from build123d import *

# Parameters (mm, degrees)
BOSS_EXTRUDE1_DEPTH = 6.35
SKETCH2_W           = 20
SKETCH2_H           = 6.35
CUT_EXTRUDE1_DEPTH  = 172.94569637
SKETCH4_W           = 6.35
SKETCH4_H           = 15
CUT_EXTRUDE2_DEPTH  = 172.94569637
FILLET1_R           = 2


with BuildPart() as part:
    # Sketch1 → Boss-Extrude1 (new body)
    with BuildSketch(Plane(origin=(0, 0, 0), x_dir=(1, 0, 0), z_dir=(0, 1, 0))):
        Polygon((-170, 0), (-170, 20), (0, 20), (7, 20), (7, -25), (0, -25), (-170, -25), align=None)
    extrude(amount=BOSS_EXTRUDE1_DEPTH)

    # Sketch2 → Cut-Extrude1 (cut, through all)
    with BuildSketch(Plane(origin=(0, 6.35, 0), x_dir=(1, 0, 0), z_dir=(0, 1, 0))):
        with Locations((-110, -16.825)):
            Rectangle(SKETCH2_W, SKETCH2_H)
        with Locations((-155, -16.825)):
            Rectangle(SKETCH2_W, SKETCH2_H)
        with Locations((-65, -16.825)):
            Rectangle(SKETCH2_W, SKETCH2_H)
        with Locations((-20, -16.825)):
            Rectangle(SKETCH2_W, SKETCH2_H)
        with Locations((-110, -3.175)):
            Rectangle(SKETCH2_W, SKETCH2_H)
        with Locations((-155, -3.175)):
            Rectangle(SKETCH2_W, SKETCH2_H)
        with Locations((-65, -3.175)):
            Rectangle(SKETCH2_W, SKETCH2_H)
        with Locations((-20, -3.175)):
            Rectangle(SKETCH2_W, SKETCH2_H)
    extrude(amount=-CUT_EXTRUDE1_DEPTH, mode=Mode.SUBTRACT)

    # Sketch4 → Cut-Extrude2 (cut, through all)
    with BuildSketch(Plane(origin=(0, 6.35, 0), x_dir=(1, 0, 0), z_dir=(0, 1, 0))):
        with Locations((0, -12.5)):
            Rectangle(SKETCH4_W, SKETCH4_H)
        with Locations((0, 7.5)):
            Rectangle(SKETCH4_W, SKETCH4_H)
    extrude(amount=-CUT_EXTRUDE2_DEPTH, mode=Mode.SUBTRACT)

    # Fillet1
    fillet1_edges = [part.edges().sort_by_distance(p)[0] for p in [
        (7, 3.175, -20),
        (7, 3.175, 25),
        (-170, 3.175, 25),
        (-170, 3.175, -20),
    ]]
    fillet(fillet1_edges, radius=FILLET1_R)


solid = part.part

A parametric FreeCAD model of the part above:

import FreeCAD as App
import Part
import Sketcher


def edges_at(feature, points):
    """Names of the edges that pass closest to the given points."""
    edges = feature.Shape.Edges
    near = lambda p: min(range(len(edges)), key=lambda i: edges[i].distToShape(Part.Vertex(*p))[0])
    return sorted({f"Edge{near(p) + 1}" for p in points})

doc = App.newDocument("Part")
body = doc.addObject("PartDesign::Body", "Body")

sketch1 = body.newObject("Sketcher::SketchObject", "Sketch")
sketch1.AttachmentSupport = (doc.getObject("XZ_Plane"), [""])
sketch1.MapMode = "FlatFace"
sketch1.addGeometry([
    Part.LineSegment(App.Vector(-170, -20, 0), App.Vector(-170, 25, 0)),
    Part.LineSegment(App.Vector(-170, 25, 0), App.Vector(7, 25, 0)),
    Part.LineSegment(App.Vector(7, 25, 0), App.Vector(7, -20, 0)),
    Part.LineSegment(App.Vector(7, -20, 0), App.Vector(-170, -20, 0)),
], False)
sketch1.addConstraint([
    Sketcher.Constraint("Coincident", 0, 2, 1, 1),
    Sketcher.Constraint("Coincident", 1, 2, 2, 1),
    Sketcher.Constraint("Coincident", 2, 2, 3, 1),
    Sketcher.Constraint("Coincident", 3, 2, 0, 1),
    Sketcher.Constraint("Vertical", 0),
    Sketcher.Constraint("Horizontal", 1),
    Sketcher.Constraint("Vertical", 2),
    Sketcher.Constraint("Horizontal", 3),
    Sketcher.Constraint("DistanceX", 1, 1, 1, 2, 177.0),
    Sketcher.Constraint("DistanceY", 0, 1, 0, 2, 45.0),
    Sketcher.Constraint("DistanceX", 0, 2, -1, 1, 170.0),
    Sketcher.Constraint("DistanceY", -1, 1, 0, 2, 25.0),
])
pad1 = body.newObject("PartDesign::Pad", "Pad")
pad1.Profile = sketch1
pad1.Length = 6.35
pad1.Reversed = True

sketch2 = body.newObject("Sketcher::SketchObject", "Sketch001")
sketch2.AttachmentSupport = (doc.getObject("XZ_Plane"), [""])
sketch2.MapMode = "FlatFace"
sketch2.AttachmentOffset = App.Placement(App.Vector(0, 0, -6.35), App.Rotation())
sketch2.addGeometry([
    Part.LineSegment(App.Vector(-120, 13.65, 0), App.Vector(-120, 20, 0)),
    Part.LineSegment(App.Vector(-120, 20, 0), App.Vector(-100, 20, 0)),
    Part.LineSegment(App.Vector(-100, 20, 0), App.Vector(-100, 13.65, 0)),
    Part.LineSegment(App.Vector(-100, 13.65, 0), App.Vector(-120, 13.65, 0)),
    Part.LineSegment(App.Vector(-165, 13.65, 0), App.Vector(-165, 20, 0)),
    Part.LineSegment(App.Vector(-165, 20, 0), App.Vector(-145, 20, 0)),
    Part.LineSegment(App.Vector(-145, 20, 0), App.Vector(-145, 13.65, 0)),
    Part.LineSegment(App.Vector(-145, 13.65, 0), App.Vector(-165, 13.65, 0)),
    Part.LineSegment(App.Vector(-75, 13.65, 0), App.Vector(-75, 20, 0)),
    Part.LineSegment(App.Vector(-75, 20, 0), App.Vector(-55, 20, 0)),
    Part.LineSegment(App.Vector(-55, 20, 0), App.Vector(-55, 13.65, 0)),
    Part.LineSegment(App.Vector(-55, 13.65, 0), App.Vector(-75, 13.65, 0)),
    Part.LineSegment(App.Vector(-30, 13.65, 0), App.Vector(-30, 20, 0)),
    Part.LineSegment(App.Vector(-30, 20, 0), App.Vector(-10, 20, 0)),
    Part.LineSegment(App.Vector(-10, 20, 0), App.Vector(-10, 13.65, 0)),
    Part.LineSegment(App.Vector(-10, 13.65, 0), App.Vector(-30, 13.65, 0)),
    Part.LineSegment(App.Vector(-120, 0, 0), App.Vector(-120, 6.35, 0)),
    Part.LineSegment(App.Vector(-120, 6.35, 0), App.Vector(-100, 6.35, 0)),
    Part.LineSegment(App.Vector(-100, 6.35, 0), App.Vector(-100, 0, 0)),
    Part.LineSegment(App.Vector(-100, 0, 0), App.Vector(-120, 0, 0)),
    Part.LineSegment(App.Vector(-165, 0, 0), App.Vector(-165, 6.35, 0)),
    Part.LineSegment(App.Vector(-165, 6.35, 0), App.Vector(-145, 6.35, 0)),
    Part.LineSegment(App.Vector(-145, 6.35, 0), App.Vector(-145, 0, 0)),
    Part.LineSegment(App.Vector(-145, 0, 0), App.Vector(-165, 0, 0)),
    Part.LineSegment(App.Vector(-75, 0, 0), App.Vector(-75, 6.35, 0)),
    Part.LineSegment(App.Vector(-75, 6.35, 0), App.Vector(-55, 6.35, 0)),
    Part.LineSegment(App.Vector(-55, 6.35, 0), App.Vector(-55, 0, 0)),
    Part.LineSegment(App.Vector(-55, 0, 0), App.Vector(-75, 0, 0)),
    Part.LineSegment(App.Vector(-30, 0, 0), App.Vector(-30, 6.35, 0)),
    Part.LineSegment(App.Vector(-30, 6.35, 0), App.Vector(-10, 6.35, 0)),
    Part.LineSegment(App.Vector(-10, 6.35, 0), App.Vector(-10, 0, 0)),
    Part.LineSegment(App.Vector(-10, 0, 0), App.Vector(-30, 0, 0)),
], False)
sketch2.addConstraint([
    Sketcher.Constraint("Coincident", 0, 2, 1, 1),
    Sketcher.Constraint("Coincident", 1, 2, 2, 1),
    Sketcher.Constraint("Coincident", 2, 2, 3, 1),
    Sketcher.Constraint("Coincident", 3, 2, 0, 1),
    Sketcher.Constraint("Coincident", 4, 2, 5, 1),
    Sketcher.Constraint("Coincident", 5, 2, 6, 1),
    Sketcher.Constraint("Coincident", 6, 2, 7, 1),
    Sketcher.Constraint("Coincident", 7, 2, 4, 1),
    Sketcher.Constraint("Coincident", 8, 2, 9, 1),
    Sketcher.Constraint("Coincident", 9, 2, 10, 1),
    Sketcher.Constraint("Coincident", 10, 2, 11, 1),
    Sketcher.Constraint("Coincident", 11, 2, 8, 1),
    Sketcher.Constraint("Coincident", 12, 2, 13, 1),
    Sketcher.Constraint("Coincident", 13, 2, 14, 1),
    Sketcher.Constraint("Coincident", 14, 2, 15, 1),
    Sketcher.Constraint("Coincident", 15, 2, 12, 1),
    Sketcher.Constraint("Coincident", 16, 2, 17, 1),
    Sketcher.Constraint("Coincident", 17, 2, 18, 1),
    Sketcher.Constraint("Coincident", 18, 2, 19, 1),
    Sketcher.Constraint("Coincident", 19, 2, 16, 1),
    Sketcher.Constraint("Coincident", 20, 2, 21, 1),
    Sketcher.Constraint("Coincident", 21, 2, 22, 1),
    Sketcher.Constraint("Coincident", 22, 2, 23, 1),
    Sketcher.Constraint("Coincident", 23, 2, 20, 1),
    Sketcher.Constraint("Coincident", 24, 2, 25, 1),
    Sketcher.Constraint("Coincident", 25, 2, 26, 1),
    Sketcher.Constraint("Coincident", 26, 2, 27, 1),
    Sketcher.Constraint("Coincident", 27, 2, 24, 1),
    Sketcher.Constraint("Coincident", 28, 2, 29, 1),
    Sketcher.Constraint("Coincident", 29, 2, 30, 1),
    Sketcher.Constraint("Coincident", 30, 2, 31, 1),
    Sketcher.Constraint("Coincident", 31, 2, 28, 1),
    Sketcher.Constraint("Vertical", 0),
    Sketcher.Constraint("Horizontal", 1),
    Sketcher.Constraint("Vertical", 2),
    Sketcher.Constraint("Horizontal", 3),
    Sketcher.Constraint("Vertical", 4),
    Sketcher.Constraint("Horizontal", 5),
    Sketcher.Constraint("Vertical", 6),
    Sketcher.Constraint("Horizontal", 7),
    Sketcher.Constraint("Vertical", 8),
    Sketcher.Constraint("Horizontal", 9),
    Sketcher.Constraint("Vertical", 10),
    Sketcher.Constraint("Horizontal", 11),
    Sketcher.Constraint("Vertical", 12),
    Sketcher.Constraint("Horizontal", 13),
    Sketcher.Constraint("Vertical", 14),
    Sketcher.Constraint("Horizontal", 15),
    Sketcher.Constraint("Vertical", 16),
    Sketcher.Constraint("Horizontal", 17),
    Sketcher.Constraint("Vertical", 18),
    Sketcher.Constraint("Horizontal", 19),
    Sketcher.Constraint("Vertical", 20),
    Sketcher.Constraint("Horizontal", 21),
    Sketcher.Constraint("Vertical", 22),
    Sketcher.Constraint("Horizontal", 23),
    Sketcher.Constraint("Vertical", 24),
    Sketcher.Constraint("Horizontal", 25),
    Sketcher.Constraint("Vertical", 26),
    Sketcher.Constraint("Horizontal", 27),
    Sketcher.Constraint("Vertical", 28),
    Sketcher.Constraint("Horizontal", 29),
    Sketcher.Constraint("Vertical", 30),
    Sketcher.Constraint("Horizontal", 31),
    Sketcher.Constraint("PointOnObject", 18, 2, -1),
    Sketcher.Constraint("PointOnObject", 22, 2, -1),
    Sketcher.Constraint("PointOnObject", 26, 2, -1),
    Sketcher.Constraint("PointOnObject", 30, 2, -1),
    Sketcher.Constraint("Horizontal", 1, 2, 4, 2),
    Sketcher.Constraint("Horizontal", 3, 2, 6, 2),
    Sketcher.Constraint("Horizontal", 5, 2, 8, 2),
    Sketcher.Constraint("Horizontal", 7, 2, 10, 2),
    Sketcher.Constraint("Horizontal", 9, 2, 12, 2),
    Sketcher.Constraint("Horizontal", 11, 2, 14, 2),
    Sketcher.Constraint("Horizontal", 17, 2, 20, 2),
    Sketcher.Constraint("Horizontal", 21, 2, 24, 2),
    Sketcher.Constraint("Horizontal", 25, 2, 28, 2),
    Sketcher.Constraint("Vertical", 3, 2, 16, 2),
    Sketcher.Constraint("Vertical", 2, 2, 17, 2),
    Sketcher.Constraint("Vertical", 7, 2, 20, 2),
    Sketcher.Constraint("Vertical", 6, 2, 21, 2),
    Sketcher.Constraint("Vertical", 11, 2, 24, 2),
    Sketcher.Constraint("Vertical", 10, 2, 25, 2),
    Sketcher.Constraint("Vertical", 15, 2, 28, 2),
    Sketcher.Constraint("Vertical", 14, 2, 29, 2),
    Sketcher.Constraint("Equal", 3, 5),
    Sketcher.Constraint("Equal", 7, 9),
    Sketcher.Constraint("Equal", 11, 13),
    Sketcher.Constraint("Equal", 14, 16),
    Sketcher.Constraint("DistanceX", 1, 1, 1, 2, 20.0),
    Sketcher.Constraint("DistanceX", 0, 2, -1, 1, 120.0),
    Sketcher.Constraint("DistanceY", -1, 1, 0, 2, 20.0),
    Sketcher.Constraint("DistanceX", 4, 2, -1, 1, 165.0),
    Sketcher.Constraint("DistanceX", 8, 2, -1, 1, 75.0),
    Sketcher.Constraint("DistanceX", 12, 2, -1, 1, 30.0),
    Sketcher.Constraint("DistanceY", 0, 1, 0, 2, 6.35),
])
pocket1 = body.newObject("PartDesign::Pocket", "Pocket")
pocket1.Profile = sketch2
pocket1.Type = "ThroughAll"
pocket1.Reversed = True

sketch3 = body.newObject("Sketcher::SketchObject", "Sketch002")
sketch3.AttachmentSupport = (doc.getObject("XZ_Plane"), [""])
sketch3.MapMode = "FlatFace"
sketch3.AttachmentOffset = App.Placement(App.Vector(0, 0, -6.35), App.Rotation())
sketch3.addGeometry([
    Part.LineSegment(App.Vector(-3.175, 5, 0), App.Vector(-3.175, 20, 0)),
    Part.LineSegment(App.Vector(-3.175, 20, 0), App.Vector(3.175, 20, 0)),
    Part.LineSegment(App.Vector(3.175, 20, 0), App.Vector(3.175, 5, 0)),
    Part.LineSegment(App.Vector(3.175, 5, 0), App.Vector(-3.175, 5, 0)),
    Part.LineSegment(App.Vector(-3.175, -15, 0), App.Vector(-3.175, 0, 0)),
    Part.LineSegment(App.Vector(-3.175, 0, 0), App.Vector(3.175, 0, 0)),
    Part.LineSegment(App.Vector(3.175, 0, 0), App.Vector(3.175, -15, 0)),
    Part.LineSegment(App.Vector(3.175, -15, 0), App.Vector(-3.175, -15, 0)),
], False)
sketch3.addConstraint([
    Sketcher.Constraint("Coincident", 0, 2, 1, 1),
    Sketcher.Constraint("Coincident", 1, 2, 2, 1),
    Sketcher.Constraint("Coincident", 2, 2, 3, 1),
    Sketcher.Constraint("Coincident", 3, 2, 0, 1),
    Sketcher.Constraint("Coincident", 4, 2, 5, 1),
    Sketcher.Constraint("Coincident", 5, 2, 6, 1),
    Sketcher.Constraint("Coincident", 6, 2, 7, 1),
    Sketcher.Constraint("Coincident", 7, 2, 4, 1),
    Sketcher.Constraint("Vertical", 0),
    Sketcher.Constraint("Horizontal", 1),
    Sketcher.Constraint("Vertical", 2),
    Sketcher.Constraint("Horizontal", 3),
    Sketcher.Constraint("Vertical", 4),
    Sketcher.Constraint("Horizontal", 5),
    Sketcher.Constraint("Vertical", 6),
    Sketcher.Constraint("Horizontal", 7),
    Sketcher.Constraint("Symmetric", 4, 2, 5, 2, -1, 1),
    Sketcher.Constraint("Vertical", 3, 2, 4, 2),
    Sketcher.Constraint("Vertical", 2, 2, 5, 2),
    Sketcher.Constraint("Equal", 2, 4),
    Sketcher.Constraint("DistanceY", 0, 1, 0, 2, 15.0),
    Sketcher.Constraint("DistanceY", -1, 1, 0, 2, 20.0),
    Sketcher.Constraint("DistanceX", 1, 1, 1, 2, 6.35),
])
pocket2 = body.newObject("PartDesign::Pocket", "Pocket001")
pocket2.Profile = sketch3
pocket2.Type = "ThroughAll"
pocket2.Reversed = True
doc.recompute()

fillet = body.newObject("PartDesign::Fillet", "Fillet")
fillet.Base = (pocket2, edges_at(pocket2, [
    (7, 3.175, -20),
    (7, 3.175, 25),
    (-170, 3.175, 25),
    (-170, 3.175, -20),
]))
fillet.Radius = 2

doc.recompute()
